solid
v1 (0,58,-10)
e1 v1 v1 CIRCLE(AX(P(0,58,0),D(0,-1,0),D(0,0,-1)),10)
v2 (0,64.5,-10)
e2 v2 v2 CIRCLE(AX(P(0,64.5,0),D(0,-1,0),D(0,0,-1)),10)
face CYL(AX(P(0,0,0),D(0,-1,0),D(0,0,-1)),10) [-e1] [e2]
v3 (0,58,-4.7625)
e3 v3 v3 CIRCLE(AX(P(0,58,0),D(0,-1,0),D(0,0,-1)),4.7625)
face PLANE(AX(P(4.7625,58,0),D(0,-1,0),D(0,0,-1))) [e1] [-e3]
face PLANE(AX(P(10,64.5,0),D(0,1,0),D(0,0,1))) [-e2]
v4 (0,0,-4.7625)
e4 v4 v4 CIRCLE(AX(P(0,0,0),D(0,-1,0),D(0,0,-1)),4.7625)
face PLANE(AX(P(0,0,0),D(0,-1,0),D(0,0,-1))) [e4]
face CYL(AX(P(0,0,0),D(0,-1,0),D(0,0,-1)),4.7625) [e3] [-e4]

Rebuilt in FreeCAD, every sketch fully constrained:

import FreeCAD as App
import Part
import Sketcher
from FreeCAD import Vector


def add_polygon(sketch, points):
    """Adds a closed chain of lines whose ends are joined by coincident constraints."""
    first, n = sketch.GeometryCount, len(points)
    for a, b in zip(points, points[1:] + points[:1]):
        sketch.addGeometry(Part.LineSegment(App.Vector(*a, 0), App.Vector(*b, 0)), False)
    for i in range(n):
        sketch.addConstraint(Sketcher.Constraint("Coincident", first + i, 2, first + (i + 1) % n, 1))

doc = App.newDocument("Part")
params = doc.addObject("Spreadsheet::Sheet", "Params")
for row, (alias, value) in enumerate([
    ("sketch1_width", "10 mm"),
    ("sketch1_height", "58 mm"),
    ("sketch1_height2", "6.5 mm"),
    ("revolution_angle", "360 deg"),
], start=1):
    params.set(f"A{row}", alias)
    params.set(f"B{row}", "=" + value)
    params.setAlias(f"B{row}", alias)

body = doc.addObject("PartDesign::Body", "Body")

# Sketch on XY plane
sketch1 = body.newObject("Sketcher::SketchObject", "Sketch")
sketch1.AttachmentSupport = (doc.getObject("XY_Plane"), [""])
sketch1.MapMode = "FlatFace"
add_polygon(sketch1, [(0, 0), (4.7625, 0), (4.7625, 58), (10, 58), (10, 64.5), (0, 64.5)])  # lines 0-5
sketch1.addConstraint(Sketcher.Constraint("Horizontal", 0))
sketch1.addConstraint(Sketcher.Constraint("Vertical", 1))
sketch1.addConstraint(Sketcher.Constraint("Horizontal", 2))
sketch1.addConstraint(Sketcher.Constraint("Vertical", 3))
sketch1.addConstraint(Sketcher.Constraint("Horizontal", 4))
sketch1.addConstraint(Sketcher.Constraint("Vertical", 5))
sketch1.addConstraint(Sketcher.Constraint("Coincident", 5, 2, -1, 1))
sketch1.addConstraint(Sketcher.Constraint("DistanceX", 4, 2, 4, 1, 10.0))
sketch1.addConstraint(Sketcher.Constraint("DistanceY", 1, 1, 1, 2, 58.0))
sketch1.addConstraint(Sketcher.Constraint("DistanceY", 3, 1, 3, 2, 6.5))
sketch1.addConstraint(Sketcher.Constraint("DistanceX", 0, 1, 0, 2, 4.7625))
sketch1.setExpression("Constraints[13]", "Params.sketch1_width")
sketch1.setExpression("Constraints[14]", "Params.sketch1_height")
sketch1.setExpression("Constraints[15]", "Params.sketch1_height2")
revolution = body.newObject("PartDesign::Revolution", "Revolution")
revolution.Profile = sketch1
revolution.ReferenceAxis = (sketch1, ["V_Axis"])
revolution.setExpression("Angle", "Params.revolution_angle")

doc.recompute()
